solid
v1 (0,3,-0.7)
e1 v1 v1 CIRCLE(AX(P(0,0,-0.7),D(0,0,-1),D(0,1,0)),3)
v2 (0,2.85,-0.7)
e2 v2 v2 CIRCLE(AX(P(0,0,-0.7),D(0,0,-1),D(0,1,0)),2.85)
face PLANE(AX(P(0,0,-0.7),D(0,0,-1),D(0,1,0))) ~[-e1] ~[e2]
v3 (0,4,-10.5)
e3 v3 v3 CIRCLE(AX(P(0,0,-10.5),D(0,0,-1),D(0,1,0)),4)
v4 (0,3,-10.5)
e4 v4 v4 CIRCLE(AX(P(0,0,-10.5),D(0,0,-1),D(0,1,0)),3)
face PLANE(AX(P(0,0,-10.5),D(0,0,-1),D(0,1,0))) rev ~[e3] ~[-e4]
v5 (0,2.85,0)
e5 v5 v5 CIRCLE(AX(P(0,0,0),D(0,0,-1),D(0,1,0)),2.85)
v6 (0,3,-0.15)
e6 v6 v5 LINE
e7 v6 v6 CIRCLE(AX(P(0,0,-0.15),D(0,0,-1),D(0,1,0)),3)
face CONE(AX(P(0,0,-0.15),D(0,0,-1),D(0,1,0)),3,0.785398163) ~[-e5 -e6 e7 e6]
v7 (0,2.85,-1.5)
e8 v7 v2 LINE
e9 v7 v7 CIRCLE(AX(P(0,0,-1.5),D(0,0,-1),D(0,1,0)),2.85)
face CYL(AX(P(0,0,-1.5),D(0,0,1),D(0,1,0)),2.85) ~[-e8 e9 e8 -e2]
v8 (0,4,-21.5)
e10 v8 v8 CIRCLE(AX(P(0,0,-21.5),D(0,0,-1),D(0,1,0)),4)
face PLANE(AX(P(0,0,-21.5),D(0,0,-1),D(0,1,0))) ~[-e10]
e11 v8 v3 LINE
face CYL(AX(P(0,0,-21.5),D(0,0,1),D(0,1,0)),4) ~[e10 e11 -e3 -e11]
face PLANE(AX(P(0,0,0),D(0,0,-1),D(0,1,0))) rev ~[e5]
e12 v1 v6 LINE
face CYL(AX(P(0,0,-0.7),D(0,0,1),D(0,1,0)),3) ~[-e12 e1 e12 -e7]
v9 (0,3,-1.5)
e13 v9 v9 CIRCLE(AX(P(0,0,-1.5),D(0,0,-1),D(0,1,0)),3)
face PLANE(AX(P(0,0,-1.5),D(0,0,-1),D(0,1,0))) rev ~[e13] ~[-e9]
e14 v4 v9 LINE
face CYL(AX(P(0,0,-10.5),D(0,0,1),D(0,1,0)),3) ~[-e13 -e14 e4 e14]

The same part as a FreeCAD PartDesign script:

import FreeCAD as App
import Part
import Sketcher

V = App.Vector
Q = App.Units.Quantity

doc = App.newDocument("Part")
body = doc.addObject("PartDesign::Body", "Body")

sketch1 = body.newObject("Sketcher::SketchObject", "Sketch")
sketch1.AttachmentSupport = (doc.getObject("YZ_Plane"), [""])
sketch1.MapMode = "FlatFace"
sketch1.addGeometry(Part.LineSegment(V(2.85, 0, 0), V(0, 0, 0)), False)
sketch1.addGeometry(Part.LineSegment(V(0, 0, 0), V(0, -21.5, 0)), False)
sketch1.addGeometry(Part.LineSegment(V(0, -21.5, 0), V(4, -21.5, 0)), False)
sketch1.addGeometry(Part.LineSegment(V(4, -21.5, 0), V(4, -10.5, 0)), False)
sketch1.addGeometry(Part.LineSegment(V(4, -10.5, 0), V(3, -10.5, 0)), False)
sketch1.addGeometry(Part.LineSegment(V(3, -10.5, 0), V(3, -1.5, 0)), False)
sketch1.addGeometry(Part.LineSegment(V(3, -1.5, 0), V(2.85, -1.5, 0)), False)
sketch1.addGeometry(Part.LineSegment(V(2.85, -1.5, 0), V(2.85, -0.7, 0)), False)
sketch1.addGeometry(Part.LineSegment(V(2.85, -0.7, 0), V(3, -0.7, 0)), False)
sketch1.addGeometry(Part.LineSegment(V(3, -0.7, 0), V(3, -0.15, 0)), False)
sketch1.addGeometry(Part.LineSegment(V(3, -0.15, 0), V(2.85, 0, 0)), False)
sketch1.addConstraint(Sketcher.Constraint("Coincident", 0, 2, 1, 1))
sketch1.addConstraint(Sketcher.Constraint("Coincident", 1, 2, 2, 1))
sketch1.addConstraint(Sketcher.Constraint("Coincident", 2, 2, 3, 1))
sketch1.addConstraint(Sketcher.Constraint("Coincident", 3, 2, 4, 1))
sketch1.addConstraint(Sketcher.Constraint("Coincident", 4, 2, 5, 1))
sketch1.addConstraint(Sketcher.Constraint("Coincident", 5, 2, 6, 1))
sketch1.addConstraint(Sketcher.Constraint("Coincident", 6, 2, 7, 1))
sketch1.addConstraint(Sketcher.Constraint("Coincident", 7, 2, 8, 1))
sketch1.addConstraint(Sketcher.Constraint("Coincident", 8, 2, 9, 1))
sketch1.addConstraint(Sketcher.Constraint("Coincident", 9, 2, 10, 1))
sketch1.addConstraint(Sketcher.Constraint("Coincident", 10, 2, 0, 1))
sketch1.addConstraint(Sketcher.Constraint("Horizontal", 0))
sketch1.addConstraint(Sketcher.Constraint("Vertical", 1))
sketch1.addConstraint(Sketcher.Constraint("Horizontal", 2))
sketch1.addConstraint(Sketcher.Constraint("Vertical", 3))
sketch1.addConstraint(Sketcher.Constraint("Horizontal", 4))
sketch1.addConstraint(Sketcher.Constraint("Vertical", 5))
sketch1.addConstraint(Sketcher.Constraint("Horizontal", 6))
sketch1.addConstraint(Sketcher.Constraint("Vertical", 7))
sketch1.addConstraint(Sketcher.Constraint("Horizontal", 8))
sketch1.addConstraint(Sketcher.Constraint("Vertical", 9))
sketch1.addConstraint(Sketcher.Constraint("Coincident", 0, 2, -1, 1))
sketch1.addConstraint(Sketcher.Constraint("Vertical", 5, 2, 8, 2))
sketch1.addConstraint(Sketcher.Constraint("Vertical", 7, 2, 10, 2))
sketch1.addConstraint(Sketcher.Constraint("DistanceX", 2, 1, 2, 2, Q("4 mm")))
sketch1.addConstraint(Sketcher.Constraint("DistanceY", 3, 1, 3, 2, Q("11 mm")))
sketch1.addConstraint(Sketcher.Constraint("DistanceY", 5, 1, 5, 2, Q("9 mm")))
sketch1.addConstraint(Sketcher.Constraint("DistanceY", 1, 2, 1, 1, Q("21.5 mm")))
sketch1.addConstraint(Sketcher.Constraint("DistanceY", 7, 1, 7, 2, Q("0.8 mm")))
sketch1.addConstraint(Sketcher.Constraint("DistanceX", -1, 1, 4, 2, Q("3 mm")))
sketch1.addConstraint(Sketcher.Constraint("DistanceX", 6, 2, 6, 1, Q("0.15 mm")))
sketch1.addConstraint(Sketcher.Constraint("DistanceY", 9, 2, -1, 1, Q("0.15 mm")))
revolution = body.newObject("PartDesign::Revolution", "Revolution")
revolution.Profile = sketch1
revolution.ReferenceAxis = (sketch1, ["V_Axis"])
revolution.Angle = 360

doc.recompute()
